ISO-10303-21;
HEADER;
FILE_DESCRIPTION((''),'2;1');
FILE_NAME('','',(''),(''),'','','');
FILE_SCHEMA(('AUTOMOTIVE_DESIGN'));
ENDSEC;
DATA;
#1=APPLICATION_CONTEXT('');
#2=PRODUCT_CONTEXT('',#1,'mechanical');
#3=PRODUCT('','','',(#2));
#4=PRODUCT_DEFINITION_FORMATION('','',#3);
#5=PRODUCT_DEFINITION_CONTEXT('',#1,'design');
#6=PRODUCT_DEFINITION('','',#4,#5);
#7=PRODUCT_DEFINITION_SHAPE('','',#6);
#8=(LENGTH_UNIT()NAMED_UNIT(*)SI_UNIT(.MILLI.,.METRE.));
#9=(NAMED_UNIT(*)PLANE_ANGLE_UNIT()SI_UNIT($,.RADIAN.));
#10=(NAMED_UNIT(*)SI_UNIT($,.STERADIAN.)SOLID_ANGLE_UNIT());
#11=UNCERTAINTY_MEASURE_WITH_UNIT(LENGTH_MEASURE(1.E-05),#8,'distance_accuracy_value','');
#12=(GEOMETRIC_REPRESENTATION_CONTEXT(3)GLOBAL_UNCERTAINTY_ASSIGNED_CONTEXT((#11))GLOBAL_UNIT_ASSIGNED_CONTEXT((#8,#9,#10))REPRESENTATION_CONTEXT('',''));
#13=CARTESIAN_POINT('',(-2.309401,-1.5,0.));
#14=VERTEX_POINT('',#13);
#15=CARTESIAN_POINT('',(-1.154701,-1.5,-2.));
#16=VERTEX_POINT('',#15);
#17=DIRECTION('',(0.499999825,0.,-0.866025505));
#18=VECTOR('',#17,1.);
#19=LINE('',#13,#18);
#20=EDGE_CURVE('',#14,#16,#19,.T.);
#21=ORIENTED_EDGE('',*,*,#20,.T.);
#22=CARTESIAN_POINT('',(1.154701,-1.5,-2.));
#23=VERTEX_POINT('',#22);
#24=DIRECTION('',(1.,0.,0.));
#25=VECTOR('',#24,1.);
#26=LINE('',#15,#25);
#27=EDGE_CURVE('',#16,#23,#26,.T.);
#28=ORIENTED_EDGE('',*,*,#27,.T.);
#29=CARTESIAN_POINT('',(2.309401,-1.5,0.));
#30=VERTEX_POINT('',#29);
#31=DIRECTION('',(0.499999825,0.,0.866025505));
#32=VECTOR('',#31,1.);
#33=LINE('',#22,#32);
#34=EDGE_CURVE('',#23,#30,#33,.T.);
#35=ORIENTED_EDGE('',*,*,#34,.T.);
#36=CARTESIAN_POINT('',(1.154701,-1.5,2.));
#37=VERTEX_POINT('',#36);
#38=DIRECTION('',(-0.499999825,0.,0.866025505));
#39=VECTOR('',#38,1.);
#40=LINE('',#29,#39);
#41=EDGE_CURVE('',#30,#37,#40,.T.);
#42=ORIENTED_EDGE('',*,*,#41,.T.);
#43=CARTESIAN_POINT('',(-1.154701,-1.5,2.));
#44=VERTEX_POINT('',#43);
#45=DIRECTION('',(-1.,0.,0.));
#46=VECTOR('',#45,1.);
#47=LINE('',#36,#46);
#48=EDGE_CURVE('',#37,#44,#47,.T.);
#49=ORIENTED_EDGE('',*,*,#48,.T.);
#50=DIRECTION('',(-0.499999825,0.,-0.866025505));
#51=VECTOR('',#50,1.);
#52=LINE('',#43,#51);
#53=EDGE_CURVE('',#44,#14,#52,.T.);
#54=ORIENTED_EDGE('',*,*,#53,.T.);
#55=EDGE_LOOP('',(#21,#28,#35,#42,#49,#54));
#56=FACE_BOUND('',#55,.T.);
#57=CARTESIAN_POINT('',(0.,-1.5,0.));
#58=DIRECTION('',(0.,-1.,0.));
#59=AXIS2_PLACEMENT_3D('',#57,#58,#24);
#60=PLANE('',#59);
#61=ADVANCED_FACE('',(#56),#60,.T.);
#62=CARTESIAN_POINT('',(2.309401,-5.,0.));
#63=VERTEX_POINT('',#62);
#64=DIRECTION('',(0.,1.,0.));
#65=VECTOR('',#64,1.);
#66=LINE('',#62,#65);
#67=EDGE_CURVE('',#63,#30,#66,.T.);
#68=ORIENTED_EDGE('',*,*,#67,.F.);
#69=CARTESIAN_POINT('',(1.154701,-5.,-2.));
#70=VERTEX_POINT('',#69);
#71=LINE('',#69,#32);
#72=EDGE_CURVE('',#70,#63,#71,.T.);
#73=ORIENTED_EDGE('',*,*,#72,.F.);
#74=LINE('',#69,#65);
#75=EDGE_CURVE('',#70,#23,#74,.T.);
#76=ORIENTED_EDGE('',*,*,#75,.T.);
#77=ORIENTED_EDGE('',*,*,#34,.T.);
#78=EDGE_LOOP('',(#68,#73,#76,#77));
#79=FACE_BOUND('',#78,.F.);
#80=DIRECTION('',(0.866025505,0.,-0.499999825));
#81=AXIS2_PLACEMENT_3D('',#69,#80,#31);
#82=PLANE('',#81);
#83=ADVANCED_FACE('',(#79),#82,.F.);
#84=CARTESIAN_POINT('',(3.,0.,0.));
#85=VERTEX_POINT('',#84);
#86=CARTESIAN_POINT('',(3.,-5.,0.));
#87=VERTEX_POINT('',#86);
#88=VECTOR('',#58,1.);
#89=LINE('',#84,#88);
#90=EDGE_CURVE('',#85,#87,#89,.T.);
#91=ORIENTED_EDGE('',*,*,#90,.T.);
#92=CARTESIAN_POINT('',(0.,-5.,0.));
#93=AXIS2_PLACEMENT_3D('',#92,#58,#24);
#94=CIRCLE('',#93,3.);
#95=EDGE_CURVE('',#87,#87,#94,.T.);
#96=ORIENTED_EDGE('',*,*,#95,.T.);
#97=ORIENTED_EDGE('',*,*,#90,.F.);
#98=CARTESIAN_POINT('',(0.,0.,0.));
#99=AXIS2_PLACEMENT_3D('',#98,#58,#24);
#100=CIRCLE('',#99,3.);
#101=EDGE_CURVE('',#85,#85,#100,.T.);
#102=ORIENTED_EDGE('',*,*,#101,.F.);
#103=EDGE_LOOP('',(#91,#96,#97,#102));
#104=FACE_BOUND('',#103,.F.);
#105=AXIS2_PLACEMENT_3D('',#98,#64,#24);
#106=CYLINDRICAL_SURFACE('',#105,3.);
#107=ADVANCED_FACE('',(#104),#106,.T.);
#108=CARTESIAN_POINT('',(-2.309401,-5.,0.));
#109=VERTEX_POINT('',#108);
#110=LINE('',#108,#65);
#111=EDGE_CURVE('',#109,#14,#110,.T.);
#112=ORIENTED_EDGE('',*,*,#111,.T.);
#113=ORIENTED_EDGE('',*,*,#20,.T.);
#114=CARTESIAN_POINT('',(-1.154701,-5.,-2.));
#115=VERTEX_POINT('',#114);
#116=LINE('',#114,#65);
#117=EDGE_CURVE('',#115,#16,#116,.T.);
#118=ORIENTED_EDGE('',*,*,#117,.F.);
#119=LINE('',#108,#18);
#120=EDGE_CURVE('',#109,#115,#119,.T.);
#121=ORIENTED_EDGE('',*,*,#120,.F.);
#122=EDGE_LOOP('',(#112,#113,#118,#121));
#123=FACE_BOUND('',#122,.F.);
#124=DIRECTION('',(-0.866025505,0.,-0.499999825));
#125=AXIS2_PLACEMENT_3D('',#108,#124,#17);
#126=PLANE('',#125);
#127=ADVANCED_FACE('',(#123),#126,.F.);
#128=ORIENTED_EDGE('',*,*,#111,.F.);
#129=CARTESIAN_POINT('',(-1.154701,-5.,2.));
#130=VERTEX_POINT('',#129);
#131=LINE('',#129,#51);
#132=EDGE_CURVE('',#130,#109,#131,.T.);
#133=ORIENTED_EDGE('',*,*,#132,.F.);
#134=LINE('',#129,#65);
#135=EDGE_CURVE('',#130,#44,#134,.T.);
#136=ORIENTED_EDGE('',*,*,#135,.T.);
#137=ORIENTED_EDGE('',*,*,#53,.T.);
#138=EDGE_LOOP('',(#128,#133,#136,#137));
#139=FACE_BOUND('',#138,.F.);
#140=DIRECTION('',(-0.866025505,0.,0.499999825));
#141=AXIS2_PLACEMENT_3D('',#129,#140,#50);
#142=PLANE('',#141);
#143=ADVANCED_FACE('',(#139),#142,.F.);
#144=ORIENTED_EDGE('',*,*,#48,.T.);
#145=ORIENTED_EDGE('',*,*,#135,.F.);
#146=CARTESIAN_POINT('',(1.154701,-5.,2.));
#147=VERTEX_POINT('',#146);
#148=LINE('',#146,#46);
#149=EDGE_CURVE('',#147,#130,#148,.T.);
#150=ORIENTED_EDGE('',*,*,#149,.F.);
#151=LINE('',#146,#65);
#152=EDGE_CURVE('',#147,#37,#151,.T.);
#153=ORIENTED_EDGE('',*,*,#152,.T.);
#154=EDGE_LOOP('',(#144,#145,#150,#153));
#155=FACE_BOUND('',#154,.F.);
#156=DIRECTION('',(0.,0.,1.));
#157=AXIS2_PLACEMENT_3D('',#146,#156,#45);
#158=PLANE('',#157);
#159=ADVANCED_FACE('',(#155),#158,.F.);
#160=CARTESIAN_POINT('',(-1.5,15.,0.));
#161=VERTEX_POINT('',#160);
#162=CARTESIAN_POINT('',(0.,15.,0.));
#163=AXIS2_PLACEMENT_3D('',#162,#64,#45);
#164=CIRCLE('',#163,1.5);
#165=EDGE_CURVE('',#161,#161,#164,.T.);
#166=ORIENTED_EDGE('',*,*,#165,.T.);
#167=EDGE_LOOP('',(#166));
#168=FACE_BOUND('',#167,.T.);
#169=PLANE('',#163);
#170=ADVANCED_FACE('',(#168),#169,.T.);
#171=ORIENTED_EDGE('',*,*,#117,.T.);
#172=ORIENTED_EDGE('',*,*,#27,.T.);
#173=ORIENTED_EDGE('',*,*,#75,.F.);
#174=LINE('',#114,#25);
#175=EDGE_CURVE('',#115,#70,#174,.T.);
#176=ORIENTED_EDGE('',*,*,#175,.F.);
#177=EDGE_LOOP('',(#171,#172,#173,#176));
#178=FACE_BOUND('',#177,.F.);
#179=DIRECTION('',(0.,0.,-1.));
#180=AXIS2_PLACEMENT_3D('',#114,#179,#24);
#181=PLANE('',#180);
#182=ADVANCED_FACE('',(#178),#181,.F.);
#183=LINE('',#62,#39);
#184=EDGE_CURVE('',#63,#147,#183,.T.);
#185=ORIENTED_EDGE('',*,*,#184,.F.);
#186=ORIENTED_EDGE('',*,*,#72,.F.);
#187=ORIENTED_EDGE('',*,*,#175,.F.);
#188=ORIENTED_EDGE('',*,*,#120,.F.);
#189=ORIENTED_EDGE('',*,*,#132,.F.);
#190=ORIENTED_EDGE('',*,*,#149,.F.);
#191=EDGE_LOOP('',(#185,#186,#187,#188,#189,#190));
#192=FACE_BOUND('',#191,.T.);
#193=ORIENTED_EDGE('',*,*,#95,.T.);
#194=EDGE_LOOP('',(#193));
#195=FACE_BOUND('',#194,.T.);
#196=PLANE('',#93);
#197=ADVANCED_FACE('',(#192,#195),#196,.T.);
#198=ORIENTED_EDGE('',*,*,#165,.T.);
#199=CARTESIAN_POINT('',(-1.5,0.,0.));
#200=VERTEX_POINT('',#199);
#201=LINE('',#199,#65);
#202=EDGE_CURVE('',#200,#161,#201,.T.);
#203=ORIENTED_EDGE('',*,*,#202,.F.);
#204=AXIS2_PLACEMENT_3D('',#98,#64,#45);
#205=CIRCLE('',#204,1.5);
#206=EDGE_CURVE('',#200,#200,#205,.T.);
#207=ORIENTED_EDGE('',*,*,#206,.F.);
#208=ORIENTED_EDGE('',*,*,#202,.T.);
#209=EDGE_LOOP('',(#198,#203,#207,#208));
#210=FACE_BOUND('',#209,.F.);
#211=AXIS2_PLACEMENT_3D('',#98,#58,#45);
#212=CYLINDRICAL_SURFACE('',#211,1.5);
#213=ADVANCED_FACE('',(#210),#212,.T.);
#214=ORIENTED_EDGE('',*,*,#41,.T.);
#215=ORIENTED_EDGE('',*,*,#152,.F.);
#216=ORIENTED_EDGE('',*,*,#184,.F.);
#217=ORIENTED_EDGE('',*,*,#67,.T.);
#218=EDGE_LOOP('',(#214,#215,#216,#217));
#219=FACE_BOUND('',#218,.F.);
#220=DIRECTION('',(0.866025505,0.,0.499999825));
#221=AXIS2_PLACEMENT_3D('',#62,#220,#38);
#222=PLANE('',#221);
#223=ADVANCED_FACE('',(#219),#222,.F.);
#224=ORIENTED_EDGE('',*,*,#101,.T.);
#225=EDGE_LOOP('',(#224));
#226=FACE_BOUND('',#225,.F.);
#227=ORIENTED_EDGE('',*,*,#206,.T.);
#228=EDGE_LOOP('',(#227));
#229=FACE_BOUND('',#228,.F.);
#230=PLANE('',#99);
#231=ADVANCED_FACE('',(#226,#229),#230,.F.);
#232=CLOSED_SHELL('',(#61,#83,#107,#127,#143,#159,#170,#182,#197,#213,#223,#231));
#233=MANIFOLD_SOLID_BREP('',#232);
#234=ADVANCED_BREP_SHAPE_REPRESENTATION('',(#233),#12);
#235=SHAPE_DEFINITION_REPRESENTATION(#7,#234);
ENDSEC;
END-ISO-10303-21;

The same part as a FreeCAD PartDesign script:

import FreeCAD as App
import Part
import Sketcher

V = App.Vector
Q = App.Units.Quantity


def add_polygon(sketch, points):
    """Adds a closed chain of lines whose ends are joined by coincident constraints."""
    first, n = sketch.GeometryCount, len(points)
    for a, b in zip(points, points[1:] + points[:1]):
        sketch.addGeometry(Part.LineSegment(App.Vector(*a, 0), App.Vector(*b, 0)), False)
    for i in range(n):
        sketch.addConstraint(Sketcher.Constraint("Coincident", first + i, 2, first + (i + 1) % n, 1))

doc = App.newDocument("Part")
body = doc.addObject("PartDesign::Body", "Body")

# Sketch on XZ plane
sketch1 = body.newObject("Sketcher::SketchObject", "Sketch")
sketch1.AttachmentSupport = (doc.getObject("XZ_Plane"), [""])
sketch1.MapMode = "FlatFace"
sketch1.addGeometry(Part.Circle(V(0, 0, 0), V(0, 0, 1), 3), False)
sketch1.addConstraint([
    Sketcher.Constraint("Coincident", 0, 3, -1, 1),
    Sketcher.Constraint("Diameter", 0, 6.0),
])
pad1 = body.newObject("PartDesign::Pad", "Pad")
pad1.Profile = sketch1
pad1.Length = 5

# Sketch on XZ plane
sketch2 = body.newObject("Sketcher::SketchObject", "Sketch001")
sketch2.AttachmentSupport = (doc.getObject("XZ_Plane"), [""])
sketch2.MapMode = "FlatFace"
sketch2.AttachmentOffset = App.Placement(V(0, 0, 5), App.Rotation())
add_polygon(sketch2, [(1.2, 2), (-1.2, 2), (-2.3, 0), (-1.2, -2), (1.2, -2), (2.3, 0)])  # lines 0-5
sketch2.addConstraint([
    Sketcher.Constraint("Horizontal", 0),
    Sketcher.Constraint("Horizontal", 3),
    Sketcher.Constraint("Symmetric", 0, 2, 3, 2, -1, 1),
    Sketcher.Constraint("Symmetric", 1, 2, 4, 2, -1, 1),
    Sketcher.Constraint("PointOnObject", 1, 2, -1),
    Sketcher.Constraint("Parallel", 2, 5),
    Sketcher.Constraint("Vertical", 0, 2, 2, 2),
    Sketcher.Constraint("Angle", 1, Q("-119.999988 deg")),
    Sketcher.Constraint("DistanceY", -1, 1, 0, 2, 2.0),
    Sketcher.Constraint("DistanceX", 0, 2, 0, 1, 2.309402),
])
pocket1 = body.newObject("PartDesign::Pocket", "Pocket")
pocket1.Profile = sketch2
pocket1.Length = 3.5

# Sketch on XZ plane
sketch3 = body.newObject("Sketcher::SketchObject", "Sketch002")
sketch3.AttachmentSupport = (doc.getObject("XZ_Plane"), [""])
sketch3.MapMode = "FlatFace"
sketch3.addGeometry(Part.Circle(V(0, 0, 0), V(0, 0, 1), 1.5), False)
sketch3.addConstraint([
    Sketcher.Constraint("Coincident", 0, 3, -1, 1),
    Sketcher.Constraint("Diameter", 0, 3.0),
])
pad2 = body.newObject("PartDesign::Pad", "Pad001")
pad2.Profile = sketch3
pad2.Length = 15
pad2.Reversed = True

doc.recompute()
